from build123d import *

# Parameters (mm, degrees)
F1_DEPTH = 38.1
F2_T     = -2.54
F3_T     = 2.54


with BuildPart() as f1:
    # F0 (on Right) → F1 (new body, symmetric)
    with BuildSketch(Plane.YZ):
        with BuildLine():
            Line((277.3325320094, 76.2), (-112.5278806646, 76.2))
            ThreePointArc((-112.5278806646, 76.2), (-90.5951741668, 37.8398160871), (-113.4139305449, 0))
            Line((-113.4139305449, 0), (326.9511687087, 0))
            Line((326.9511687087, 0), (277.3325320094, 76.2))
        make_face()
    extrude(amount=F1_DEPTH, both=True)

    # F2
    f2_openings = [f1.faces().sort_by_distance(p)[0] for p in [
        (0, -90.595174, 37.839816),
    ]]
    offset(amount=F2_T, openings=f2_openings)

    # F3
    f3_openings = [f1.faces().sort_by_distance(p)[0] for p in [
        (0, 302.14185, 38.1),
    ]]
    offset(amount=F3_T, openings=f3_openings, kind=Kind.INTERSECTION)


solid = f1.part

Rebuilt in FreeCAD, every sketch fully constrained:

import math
import FreeCAD as App
import Part
import Sketcher

V = App.Vector
Q = App.Units.Quantity


def faces_at(feature, points):
    """Names of the faces that lie closest to the given points."""
    faces = feature.Shape.Faces
    near = lambda p: min(range(len(faces)), key=lambda i: faces[i].distToShape(Part.Vertex(*p))[0])
    return sorted({f"Face{near(p) + 1}" for p in points})

doc = App.newDocument("Part")
body = doc.addObject("PartDesign::Body", "Body")

# Sketch on YZ plane
sketch1 = body.newObject("Sketcher::SketchObject", "Sketch")
sketch1.AttachmentSupport = (doc.getObject("YZ_Plane"), [""])
sketch1.MapMode = "FlatFace"
sketch1.addGeometry(Part.LineSegment(V(277, 76, 0), V(-113, 76, 0)), False)
sketch1.addGeometry(Part.ArcOfCircle(Part.Circle(V(-134, 38, 0), V(0, 0, 1), 44), math.radians(-62), math.radians(60)), False)
sketch1.addGeometry(Part.LineSegment(V(-113, 0, 0), V(327, 0, 0)), False)
sketch1.addGeometry(Part.LineSegment(V(327, 0, 0), V(277, 76, 0)), False)
sketch1.addConstraint(Sketcher.Constraint("Coincident", 0, 2, 1, 2))
sketch1.addConstraint(Sketcher.Constraint("Coincident", 1, 1, 2, 1))
sketch1.addConstraint(Sketcher.Constraint("Coincident", 2, 2, 3, 1))
sketch1.addConstraint(Sketcher.Constraint("Coincident", 3, 2, 0, 1))
sketch1.addConstraint(Sketcher.Constraint("Horizontal", 0))
sketch1.addConstraint(Sketcher.Constraint("Horizontal", 2))
sketch1.addConstraint(Sketcher.Constraint("PointOnObject", 1, 1, -1))
sketch1.addConstraint(Sketcher.Constraint("DistanceY", -1, 1, 0, 2, Q("3 in")))
sketch1.addConstraint(Sketcher.Constraint("DistanceX", 2, 1, 2, 2, 440.365099))
sketch1.addConstraint(Sketcher.Constraint("Radius", 1, 43.627967))
sketch1.addConstraint(Sketcher.Constraint("DistanceX", 0, 2, 0, 1, 389.860413))
sketch1.addConstraint(Sketcher.Constraint("DistanceX", 1, 3, -1, 1, 134.220192))
sketch1.addConstraint(Sketcher.Constraint("DistanceX", 0, 2, -1, 1, 112.527881))
pad1 = body.newObject("PartDesign::Pad", "Pad")
pad1.Profile = sketch1
pad1.Length = Q("3 in")
pad1.Midplane = True
doc.recompute()

thickness = body.newObject("PartDesign::Thickness", "Thickness")
thickness.Base = (pad1, faces_at(pad1, [(0, -90.595, 37.84)]))
thickness.Value = Q("0.1 in")
thickness.Reversed = True
thickness.Join = "Arc"
doc.recompute()

thickness2 = body.newObject("PartDesign::Thickness", "Thickness001")
thickness2.Base = (thickness, faces_at(thickness, [(0, 302.142, 38.1)]))
thickness2.Value = Q("0.1 in")
thickness2.Reversed = False
thickness2.Join = "Intersection"

doc.recompute()
